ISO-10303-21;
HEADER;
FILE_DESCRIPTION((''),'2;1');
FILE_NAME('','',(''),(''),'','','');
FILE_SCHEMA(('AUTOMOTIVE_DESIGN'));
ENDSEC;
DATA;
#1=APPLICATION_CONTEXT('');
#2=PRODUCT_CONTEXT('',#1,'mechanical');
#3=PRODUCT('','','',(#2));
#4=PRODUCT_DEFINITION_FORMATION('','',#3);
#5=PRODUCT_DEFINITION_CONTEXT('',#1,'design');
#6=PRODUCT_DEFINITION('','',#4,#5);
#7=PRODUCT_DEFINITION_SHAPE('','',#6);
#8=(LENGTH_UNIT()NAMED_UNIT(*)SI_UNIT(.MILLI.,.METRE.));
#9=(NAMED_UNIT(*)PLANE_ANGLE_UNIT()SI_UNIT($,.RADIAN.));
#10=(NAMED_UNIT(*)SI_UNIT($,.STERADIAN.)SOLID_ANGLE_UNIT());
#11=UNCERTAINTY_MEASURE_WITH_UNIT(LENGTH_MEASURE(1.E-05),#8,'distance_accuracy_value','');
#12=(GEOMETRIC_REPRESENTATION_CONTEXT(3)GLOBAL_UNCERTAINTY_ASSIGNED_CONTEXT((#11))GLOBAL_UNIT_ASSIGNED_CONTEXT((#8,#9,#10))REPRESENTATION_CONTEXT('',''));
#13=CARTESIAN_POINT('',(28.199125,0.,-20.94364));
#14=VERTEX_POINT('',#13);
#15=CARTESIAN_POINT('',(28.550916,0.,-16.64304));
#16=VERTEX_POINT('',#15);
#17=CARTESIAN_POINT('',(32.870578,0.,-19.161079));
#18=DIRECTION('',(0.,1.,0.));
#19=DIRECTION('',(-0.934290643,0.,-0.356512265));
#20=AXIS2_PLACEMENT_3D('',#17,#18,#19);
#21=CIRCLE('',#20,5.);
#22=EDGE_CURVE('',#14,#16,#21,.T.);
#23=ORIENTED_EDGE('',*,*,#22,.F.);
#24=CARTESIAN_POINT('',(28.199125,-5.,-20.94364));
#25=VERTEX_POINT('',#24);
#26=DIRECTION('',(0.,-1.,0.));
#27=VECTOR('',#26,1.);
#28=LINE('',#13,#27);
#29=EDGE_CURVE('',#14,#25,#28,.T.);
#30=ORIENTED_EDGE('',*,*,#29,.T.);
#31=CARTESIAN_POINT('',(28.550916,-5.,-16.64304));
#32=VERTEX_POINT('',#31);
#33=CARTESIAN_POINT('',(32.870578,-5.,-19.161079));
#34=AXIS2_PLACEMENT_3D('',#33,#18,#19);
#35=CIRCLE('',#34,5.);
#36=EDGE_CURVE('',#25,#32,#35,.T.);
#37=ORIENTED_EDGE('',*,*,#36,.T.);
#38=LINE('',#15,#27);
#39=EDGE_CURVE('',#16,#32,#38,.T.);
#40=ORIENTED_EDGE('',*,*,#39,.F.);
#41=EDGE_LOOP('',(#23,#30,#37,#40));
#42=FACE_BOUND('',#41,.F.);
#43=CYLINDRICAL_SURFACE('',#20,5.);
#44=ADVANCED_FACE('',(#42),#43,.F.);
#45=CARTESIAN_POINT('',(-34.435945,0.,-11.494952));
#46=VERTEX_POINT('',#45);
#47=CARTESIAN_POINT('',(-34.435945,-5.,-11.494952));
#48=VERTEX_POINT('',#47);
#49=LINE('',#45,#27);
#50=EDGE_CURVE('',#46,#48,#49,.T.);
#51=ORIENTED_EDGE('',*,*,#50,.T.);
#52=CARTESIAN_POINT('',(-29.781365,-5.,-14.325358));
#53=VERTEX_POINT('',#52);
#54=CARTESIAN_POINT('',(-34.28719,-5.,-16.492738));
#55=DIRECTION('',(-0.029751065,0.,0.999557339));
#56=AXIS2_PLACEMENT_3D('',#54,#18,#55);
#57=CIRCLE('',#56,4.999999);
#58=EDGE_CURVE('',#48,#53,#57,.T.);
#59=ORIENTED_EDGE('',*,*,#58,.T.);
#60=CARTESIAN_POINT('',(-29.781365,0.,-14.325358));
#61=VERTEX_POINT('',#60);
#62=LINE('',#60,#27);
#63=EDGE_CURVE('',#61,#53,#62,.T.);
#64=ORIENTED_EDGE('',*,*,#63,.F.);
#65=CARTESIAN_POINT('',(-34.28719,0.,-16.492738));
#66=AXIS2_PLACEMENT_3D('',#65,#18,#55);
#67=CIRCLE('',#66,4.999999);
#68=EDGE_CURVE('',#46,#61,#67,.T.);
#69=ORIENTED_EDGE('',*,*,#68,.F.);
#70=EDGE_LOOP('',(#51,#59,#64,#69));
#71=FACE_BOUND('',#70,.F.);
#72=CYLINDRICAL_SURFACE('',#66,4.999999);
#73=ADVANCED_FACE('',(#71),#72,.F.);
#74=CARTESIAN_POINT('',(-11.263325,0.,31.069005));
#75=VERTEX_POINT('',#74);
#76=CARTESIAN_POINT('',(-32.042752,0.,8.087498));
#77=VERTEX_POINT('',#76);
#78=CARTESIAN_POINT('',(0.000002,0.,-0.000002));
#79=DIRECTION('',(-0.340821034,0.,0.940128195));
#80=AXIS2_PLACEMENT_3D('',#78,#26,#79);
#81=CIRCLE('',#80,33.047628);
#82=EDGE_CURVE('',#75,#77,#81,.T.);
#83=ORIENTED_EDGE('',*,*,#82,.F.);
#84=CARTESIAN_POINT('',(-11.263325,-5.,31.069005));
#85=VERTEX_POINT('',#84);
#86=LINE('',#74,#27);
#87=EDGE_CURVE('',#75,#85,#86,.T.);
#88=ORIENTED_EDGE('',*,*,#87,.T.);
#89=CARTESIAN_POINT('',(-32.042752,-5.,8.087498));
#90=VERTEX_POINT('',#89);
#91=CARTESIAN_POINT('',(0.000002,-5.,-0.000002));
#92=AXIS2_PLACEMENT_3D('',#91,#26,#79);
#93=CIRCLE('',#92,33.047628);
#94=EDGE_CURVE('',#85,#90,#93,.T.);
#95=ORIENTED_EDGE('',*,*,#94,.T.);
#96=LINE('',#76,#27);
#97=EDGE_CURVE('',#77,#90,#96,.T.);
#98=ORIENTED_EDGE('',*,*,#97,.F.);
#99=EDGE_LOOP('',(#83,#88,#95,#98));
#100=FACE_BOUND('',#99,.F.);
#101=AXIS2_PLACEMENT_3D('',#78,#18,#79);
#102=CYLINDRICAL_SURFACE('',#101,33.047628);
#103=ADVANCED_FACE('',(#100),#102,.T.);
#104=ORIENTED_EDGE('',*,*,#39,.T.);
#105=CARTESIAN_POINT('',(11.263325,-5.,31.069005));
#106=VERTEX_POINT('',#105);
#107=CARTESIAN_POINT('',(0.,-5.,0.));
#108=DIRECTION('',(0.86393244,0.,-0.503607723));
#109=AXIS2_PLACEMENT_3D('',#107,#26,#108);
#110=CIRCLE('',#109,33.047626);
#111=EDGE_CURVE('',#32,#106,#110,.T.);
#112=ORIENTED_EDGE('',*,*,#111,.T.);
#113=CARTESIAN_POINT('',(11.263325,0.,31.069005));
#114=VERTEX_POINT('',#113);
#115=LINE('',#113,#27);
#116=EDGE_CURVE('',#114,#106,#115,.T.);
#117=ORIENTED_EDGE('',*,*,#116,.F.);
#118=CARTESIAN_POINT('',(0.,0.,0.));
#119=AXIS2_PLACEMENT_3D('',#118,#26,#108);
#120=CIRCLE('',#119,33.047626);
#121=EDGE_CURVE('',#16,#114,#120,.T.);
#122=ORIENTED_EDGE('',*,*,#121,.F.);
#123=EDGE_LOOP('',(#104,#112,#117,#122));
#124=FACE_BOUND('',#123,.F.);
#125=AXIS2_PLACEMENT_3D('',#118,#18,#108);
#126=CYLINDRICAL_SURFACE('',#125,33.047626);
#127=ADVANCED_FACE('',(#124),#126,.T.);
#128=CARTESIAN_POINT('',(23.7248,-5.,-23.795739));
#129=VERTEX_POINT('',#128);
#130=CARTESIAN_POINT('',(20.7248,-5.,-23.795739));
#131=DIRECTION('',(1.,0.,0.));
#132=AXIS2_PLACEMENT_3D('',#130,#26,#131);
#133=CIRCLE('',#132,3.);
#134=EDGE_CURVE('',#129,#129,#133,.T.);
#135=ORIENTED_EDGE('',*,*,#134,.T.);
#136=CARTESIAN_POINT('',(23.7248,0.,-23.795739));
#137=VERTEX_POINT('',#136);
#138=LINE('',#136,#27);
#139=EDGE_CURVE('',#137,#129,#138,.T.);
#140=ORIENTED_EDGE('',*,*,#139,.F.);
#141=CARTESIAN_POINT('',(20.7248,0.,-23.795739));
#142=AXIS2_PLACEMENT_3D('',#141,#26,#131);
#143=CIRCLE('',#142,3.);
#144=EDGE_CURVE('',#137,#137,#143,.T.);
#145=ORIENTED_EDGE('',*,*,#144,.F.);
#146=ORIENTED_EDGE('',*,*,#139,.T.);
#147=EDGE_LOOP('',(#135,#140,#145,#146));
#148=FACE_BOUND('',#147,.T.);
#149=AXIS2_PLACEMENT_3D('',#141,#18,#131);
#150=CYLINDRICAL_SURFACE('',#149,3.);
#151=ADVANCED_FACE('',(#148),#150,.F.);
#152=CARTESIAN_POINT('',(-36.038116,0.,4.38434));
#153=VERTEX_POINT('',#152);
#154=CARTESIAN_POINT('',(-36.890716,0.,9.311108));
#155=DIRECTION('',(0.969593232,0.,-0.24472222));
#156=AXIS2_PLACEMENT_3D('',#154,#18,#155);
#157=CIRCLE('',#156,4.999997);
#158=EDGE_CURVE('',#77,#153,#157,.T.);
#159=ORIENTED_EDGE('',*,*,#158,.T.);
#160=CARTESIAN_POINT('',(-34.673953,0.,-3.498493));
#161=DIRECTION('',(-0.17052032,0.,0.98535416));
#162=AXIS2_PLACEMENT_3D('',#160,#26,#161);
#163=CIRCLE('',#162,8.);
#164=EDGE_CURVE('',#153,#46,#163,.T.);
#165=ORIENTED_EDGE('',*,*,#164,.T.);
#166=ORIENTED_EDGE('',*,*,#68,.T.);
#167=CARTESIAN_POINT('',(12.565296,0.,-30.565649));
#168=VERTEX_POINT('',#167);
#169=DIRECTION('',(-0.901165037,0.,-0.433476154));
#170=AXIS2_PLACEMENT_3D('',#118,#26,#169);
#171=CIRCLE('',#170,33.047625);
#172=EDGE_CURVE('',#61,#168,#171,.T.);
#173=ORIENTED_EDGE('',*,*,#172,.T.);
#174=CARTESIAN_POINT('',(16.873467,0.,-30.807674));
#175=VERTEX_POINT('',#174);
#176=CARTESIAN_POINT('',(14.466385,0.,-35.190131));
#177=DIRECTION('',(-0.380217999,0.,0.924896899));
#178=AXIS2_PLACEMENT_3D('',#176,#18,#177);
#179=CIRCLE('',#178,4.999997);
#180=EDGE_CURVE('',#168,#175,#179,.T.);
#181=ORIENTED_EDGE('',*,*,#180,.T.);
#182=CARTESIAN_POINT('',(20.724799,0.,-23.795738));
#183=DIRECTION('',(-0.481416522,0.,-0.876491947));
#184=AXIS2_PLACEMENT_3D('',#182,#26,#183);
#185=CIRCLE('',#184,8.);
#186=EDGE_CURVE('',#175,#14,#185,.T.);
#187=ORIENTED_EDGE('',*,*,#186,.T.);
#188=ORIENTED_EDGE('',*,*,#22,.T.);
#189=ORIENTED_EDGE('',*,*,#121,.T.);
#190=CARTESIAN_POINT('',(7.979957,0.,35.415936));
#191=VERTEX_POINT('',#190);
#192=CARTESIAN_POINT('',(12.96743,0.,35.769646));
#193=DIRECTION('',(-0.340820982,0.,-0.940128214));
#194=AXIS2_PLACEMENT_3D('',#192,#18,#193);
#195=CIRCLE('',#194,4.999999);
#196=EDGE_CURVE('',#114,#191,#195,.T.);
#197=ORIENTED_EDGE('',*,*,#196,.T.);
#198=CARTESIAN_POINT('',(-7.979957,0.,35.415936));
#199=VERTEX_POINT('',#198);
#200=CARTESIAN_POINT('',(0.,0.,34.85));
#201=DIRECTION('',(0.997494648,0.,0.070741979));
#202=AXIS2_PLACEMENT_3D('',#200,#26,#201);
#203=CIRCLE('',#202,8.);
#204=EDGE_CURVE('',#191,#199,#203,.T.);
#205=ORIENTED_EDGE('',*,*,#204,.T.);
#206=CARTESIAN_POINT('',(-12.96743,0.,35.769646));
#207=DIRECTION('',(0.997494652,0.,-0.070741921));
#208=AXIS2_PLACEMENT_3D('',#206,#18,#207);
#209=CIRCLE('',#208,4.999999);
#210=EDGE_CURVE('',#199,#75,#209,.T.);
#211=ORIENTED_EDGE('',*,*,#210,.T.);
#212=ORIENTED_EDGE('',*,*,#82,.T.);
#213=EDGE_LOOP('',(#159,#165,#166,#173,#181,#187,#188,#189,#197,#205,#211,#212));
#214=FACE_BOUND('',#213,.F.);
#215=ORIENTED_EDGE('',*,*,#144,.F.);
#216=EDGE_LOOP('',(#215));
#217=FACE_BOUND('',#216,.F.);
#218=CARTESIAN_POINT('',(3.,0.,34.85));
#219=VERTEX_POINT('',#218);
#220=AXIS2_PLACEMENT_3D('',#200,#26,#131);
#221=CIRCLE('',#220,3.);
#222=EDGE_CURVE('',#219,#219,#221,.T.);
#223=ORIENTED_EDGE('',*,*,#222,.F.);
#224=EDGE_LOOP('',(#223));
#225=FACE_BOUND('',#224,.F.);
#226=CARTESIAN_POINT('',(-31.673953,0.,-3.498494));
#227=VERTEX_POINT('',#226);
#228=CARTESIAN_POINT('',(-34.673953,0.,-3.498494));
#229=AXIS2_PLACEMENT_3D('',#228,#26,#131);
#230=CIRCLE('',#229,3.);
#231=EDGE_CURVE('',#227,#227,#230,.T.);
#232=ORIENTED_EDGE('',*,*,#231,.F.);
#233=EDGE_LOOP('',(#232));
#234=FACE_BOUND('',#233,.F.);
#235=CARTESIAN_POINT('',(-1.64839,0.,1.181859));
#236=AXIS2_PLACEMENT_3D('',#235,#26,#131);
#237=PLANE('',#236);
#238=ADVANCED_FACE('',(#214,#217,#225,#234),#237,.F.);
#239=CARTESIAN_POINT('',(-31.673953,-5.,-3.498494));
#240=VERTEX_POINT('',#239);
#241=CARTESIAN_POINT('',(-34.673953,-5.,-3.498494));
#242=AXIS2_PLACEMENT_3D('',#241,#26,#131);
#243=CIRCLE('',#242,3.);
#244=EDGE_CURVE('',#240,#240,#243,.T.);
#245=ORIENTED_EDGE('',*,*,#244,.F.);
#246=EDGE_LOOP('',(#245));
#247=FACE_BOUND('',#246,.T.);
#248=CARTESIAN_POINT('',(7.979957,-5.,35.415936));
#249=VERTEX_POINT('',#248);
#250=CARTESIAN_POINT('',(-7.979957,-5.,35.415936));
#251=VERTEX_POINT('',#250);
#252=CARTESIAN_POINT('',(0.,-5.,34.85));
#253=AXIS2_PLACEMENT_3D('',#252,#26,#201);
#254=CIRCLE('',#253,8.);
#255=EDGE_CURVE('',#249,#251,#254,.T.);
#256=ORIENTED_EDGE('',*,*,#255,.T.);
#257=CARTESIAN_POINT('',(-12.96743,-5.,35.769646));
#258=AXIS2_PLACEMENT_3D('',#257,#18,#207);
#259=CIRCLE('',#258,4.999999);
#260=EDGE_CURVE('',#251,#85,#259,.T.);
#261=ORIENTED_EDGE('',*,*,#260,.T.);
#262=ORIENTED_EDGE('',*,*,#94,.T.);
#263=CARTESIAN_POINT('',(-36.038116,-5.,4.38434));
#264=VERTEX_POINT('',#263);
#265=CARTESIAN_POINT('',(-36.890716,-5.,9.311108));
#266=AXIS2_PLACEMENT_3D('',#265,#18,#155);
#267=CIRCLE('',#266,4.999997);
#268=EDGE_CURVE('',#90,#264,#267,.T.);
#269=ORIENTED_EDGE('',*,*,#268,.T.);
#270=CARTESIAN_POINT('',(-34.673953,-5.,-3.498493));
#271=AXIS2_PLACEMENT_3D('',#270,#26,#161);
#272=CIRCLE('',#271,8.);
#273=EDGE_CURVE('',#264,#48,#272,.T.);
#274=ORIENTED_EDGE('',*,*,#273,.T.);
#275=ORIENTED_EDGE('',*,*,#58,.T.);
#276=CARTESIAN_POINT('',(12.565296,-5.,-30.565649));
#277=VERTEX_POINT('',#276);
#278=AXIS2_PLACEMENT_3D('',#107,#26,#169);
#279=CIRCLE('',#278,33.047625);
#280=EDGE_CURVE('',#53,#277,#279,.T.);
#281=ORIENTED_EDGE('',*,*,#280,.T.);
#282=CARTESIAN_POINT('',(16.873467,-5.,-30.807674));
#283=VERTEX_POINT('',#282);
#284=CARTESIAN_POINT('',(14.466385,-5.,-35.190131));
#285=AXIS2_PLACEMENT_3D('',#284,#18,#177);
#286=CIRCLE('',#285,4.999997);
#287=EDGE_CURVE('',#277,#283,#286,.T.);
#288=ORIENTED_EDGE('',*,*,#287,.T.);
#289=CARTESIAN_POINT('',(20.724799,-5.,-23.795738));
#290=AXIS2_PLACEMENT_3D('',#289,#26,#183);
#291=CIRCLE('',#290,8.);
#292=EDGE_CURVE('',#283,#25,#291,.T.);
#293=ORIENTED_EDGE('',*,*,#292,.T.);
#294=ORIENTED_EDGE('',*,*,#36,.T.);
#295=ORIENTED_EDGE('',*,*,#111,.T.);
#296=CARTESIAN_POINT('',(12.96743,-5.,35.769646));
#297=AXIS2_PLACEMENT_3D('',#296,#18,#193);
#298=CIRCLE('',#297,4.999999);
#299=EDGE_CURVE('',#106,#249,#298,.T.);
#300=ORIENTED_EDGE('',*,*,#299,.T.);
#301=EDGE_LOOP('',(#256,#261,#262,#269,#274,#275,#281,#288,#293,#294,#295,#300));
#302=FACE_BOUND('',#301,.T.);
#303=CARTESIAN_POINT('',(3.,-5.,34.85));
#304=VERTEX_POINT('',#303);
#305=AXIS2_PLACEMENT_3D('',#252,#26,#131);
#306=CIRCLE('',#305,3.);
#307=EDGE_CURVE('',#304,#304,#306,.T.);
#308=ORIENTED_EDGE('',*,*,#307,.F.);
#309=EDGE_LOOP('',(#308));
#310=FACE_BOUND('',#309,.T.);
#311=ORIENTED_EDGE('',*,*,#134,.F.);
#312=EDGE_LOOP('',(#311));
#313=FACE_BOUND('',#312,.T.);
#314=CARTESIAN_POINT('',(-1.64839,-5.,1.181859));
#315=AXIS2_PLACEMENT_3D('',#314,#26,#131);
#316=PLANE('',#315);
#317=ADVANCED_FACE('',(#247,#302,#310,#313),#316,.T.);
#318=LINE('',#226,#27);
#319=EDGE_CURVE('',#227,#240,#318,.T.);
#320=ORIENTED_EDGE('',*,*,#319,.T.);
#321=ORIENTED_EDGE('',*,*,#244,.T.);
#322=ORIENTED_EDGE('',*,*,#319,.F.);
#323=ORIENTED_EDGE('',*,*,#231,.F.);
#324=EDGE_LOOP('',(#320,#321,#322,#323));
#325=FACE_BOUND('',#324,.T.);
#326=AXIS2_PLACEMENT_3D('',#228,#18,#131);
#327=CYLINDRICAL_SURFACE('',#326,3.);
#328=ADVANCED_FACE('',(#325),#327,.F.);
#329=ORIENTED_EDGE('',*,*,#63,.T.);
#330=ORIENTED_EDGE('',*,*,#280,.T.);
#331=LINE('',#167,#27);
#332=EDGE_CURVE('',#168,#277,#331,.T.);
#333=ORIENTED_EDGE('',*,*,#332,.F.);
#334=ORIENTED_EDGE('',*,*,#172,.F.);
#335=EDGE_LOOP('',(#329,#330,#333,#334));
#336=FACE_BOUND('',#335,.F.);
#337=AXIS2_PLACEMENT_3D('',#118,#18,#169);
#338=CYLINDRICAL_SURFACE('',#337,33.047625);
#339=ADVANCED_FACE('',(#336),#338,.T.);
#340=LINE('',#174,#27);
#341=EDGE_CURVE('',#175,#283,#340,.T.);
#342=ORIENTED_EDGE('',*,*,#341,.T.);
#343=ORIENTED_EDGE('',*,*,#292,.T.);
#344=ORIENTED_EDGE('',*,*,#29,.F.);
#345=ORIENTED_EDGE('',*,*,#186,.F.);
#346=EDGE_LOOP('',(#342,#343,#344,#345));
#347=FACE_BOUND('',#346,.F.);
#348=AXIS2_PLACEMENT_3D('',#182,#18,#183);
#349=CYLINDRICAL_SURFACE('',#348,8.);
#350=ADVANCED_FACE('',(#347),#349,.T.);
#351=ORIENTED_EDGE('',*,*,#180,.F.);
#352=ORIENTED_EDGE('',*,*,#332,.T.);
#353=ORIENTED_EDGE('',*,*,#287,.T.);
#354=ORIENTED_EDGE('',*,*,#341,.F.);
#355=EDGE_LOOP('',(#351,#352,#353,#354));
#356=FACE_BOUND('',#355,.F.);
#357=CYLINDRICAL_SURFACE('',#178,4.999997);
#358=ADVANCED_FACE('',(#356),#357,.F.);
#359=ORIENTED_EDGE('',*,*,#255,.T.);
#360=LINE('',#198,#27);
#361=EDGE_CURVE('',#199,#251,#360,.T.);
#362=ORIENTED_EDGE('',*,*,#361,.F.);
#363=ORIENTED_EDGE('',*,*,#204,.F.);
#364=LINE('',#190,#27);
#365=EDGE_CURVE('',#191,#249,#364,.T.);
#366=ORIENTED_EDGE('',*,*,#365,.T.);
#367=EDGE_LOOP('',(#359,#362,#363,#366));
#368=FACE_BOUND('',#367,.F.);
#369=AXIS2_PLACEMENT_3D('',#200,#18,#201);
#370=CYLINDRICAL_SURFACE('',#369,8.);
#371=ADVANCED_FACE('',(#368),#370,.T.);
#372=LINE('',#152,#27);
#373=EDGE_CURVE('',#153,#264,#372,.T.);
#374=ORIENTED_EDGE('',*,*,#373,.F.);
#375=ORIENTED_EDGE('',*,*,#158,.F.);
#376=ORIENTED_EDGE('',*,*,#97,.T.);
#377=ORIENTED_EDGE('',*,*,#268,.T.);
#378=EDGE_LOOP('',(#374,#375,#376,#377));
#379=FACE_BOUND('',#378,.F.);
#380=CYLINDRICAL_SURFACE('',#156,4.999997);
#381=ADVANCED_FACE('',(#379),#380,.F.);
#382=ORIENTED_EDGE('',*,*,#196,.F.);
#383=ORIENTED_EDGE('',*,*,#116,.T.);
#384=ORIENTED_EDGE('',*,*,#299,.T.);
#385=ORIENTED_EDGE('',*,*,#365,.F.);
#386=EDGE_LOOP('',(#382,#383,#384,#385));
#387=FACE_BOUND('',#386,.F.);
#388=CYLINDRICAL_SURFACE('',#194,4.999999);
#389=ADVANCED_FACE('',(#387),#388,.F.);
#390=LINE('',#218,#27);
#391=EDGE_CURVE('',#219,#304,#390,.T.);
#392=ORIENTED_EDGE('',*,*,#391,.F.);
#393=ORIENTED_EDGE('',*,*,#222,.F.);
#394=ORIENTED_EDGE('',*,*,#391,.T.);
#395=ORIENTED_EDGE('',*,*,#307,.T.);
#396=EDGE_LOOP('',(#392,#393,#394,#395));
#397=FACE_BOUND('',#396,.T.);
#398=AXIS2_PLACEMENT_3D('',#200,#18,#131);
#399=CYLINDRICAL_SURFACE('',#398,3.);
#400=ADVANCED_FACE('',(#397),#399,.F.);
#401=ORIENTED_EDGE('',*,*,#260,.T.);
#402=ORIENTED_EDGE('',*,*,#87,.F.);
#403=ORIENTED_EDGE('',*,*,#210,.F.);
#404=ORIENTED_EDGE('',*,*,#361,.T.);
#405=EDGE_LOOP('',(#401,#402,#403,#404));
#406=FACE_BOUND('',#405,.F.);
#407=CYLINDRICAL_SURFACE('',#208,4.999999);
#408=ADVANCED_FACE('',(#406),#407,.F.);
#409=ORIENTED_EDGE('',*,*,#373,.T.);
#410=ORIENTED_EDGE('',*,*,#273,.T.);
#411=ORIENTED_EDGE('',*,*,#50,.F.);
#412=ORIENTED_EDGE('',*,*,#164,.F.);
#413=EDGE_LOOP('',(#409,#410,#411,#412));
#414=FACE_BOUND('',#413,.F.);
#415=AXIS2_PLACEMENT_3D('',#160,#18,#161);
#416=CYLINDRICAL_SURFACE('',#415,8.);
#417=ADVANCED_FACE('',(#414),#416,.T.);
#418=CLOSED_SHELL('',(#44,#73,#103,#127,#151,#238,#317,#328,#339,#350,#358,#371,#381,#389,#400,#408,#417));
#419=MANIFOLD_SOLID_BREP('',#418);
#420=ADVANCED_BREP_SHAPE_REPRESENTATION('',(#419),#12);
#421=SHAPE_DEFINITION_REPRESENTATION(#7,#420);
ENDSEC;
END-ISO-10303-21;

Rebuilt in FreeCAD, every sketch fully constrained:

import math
import FreeCAD as App
import Part
import Sketcher
Q = App.Units.Quantity

doc = App.newDocument("Part")
body = doc.addObject("PartDesign::Body", "Body")

sketch1 = body.newObject("Sketcher::SketchObject", "Sketch")
sketch1.AttachmentSupport = (doc.getObject("XZ_Plane"), [""])
sketch1.MapMode = "FlatFace"
sketch1.addGeometry(Part.ArcOfCircle(Part.Circle(App.Vector(14.5, -35.2, 0), App.Vector(0, 0, 1), 5), math.radians(61), math.radians(112)), False)
sketch1.addGeometry(Part.ArcOfCircle(Part.Circle(App.Vector(20.7, -23.8, 0), App.Vector(0, 0, 1), 8), math.radians(-119), math.radians(21)), False)
sketch1.addGeometry(Part.ArcOfCircle(Part.Circle(App.Vector(32.9, -19.2, 0), App.Vector(0, 0, 1), 5), math.radians(150), math.radians(201)), False)
sketch1.addGeometry(Part.ArcOfCircle(Part.Circle(App.Vector(0, 0, 0), App.Vector(0, 0, 1), 33), math.radians(-30), math.radians(70)), False)
sketch1.addGeometry(Part.ArcOfCircle(Part.Circle(App.Vector(13, 35.8, 0), App.Vector(0, 0, 1), 5), math.radians(-176), math.radians(-110)), False)
sketch1.addGeometry(Part.ArcOfCircle(Part.Circle(App.Vector(0, 34.9, 0), App.Vector(0, 0, 1), 8), math.radians(4), math.radians(176)), False)
sketch1.addGeometry(Part.ArcOfCircle(Part.Circle(App.Vector(-13, 35.8, 0), App.Vector(0, 0, 1), 5), math.radians(-70), math.radians(-4)), False)
sketch1.addGeometry(Part.ArcOfCircle(Part.Circle(App.Vector(0, 0, 0), App.Vector(0, 0, 1), 33), math.radians(110), math.radians(166)), False)
sketch1.addGeometry(Part.ArcOfCircle(Part.Circle(App.Vector(-36.9, 9.3, 0), App.Vector(0, 0, 1), 5), math.radians(-80), math.radians(-14)), False)
sketch1.addGeometry(Part.ArcOfCircle(Part.Circle(App.Vector(-34.7, -3.5, 0), App.Vector(0, 0, 1), 8), math.radians(100), math.radians(272)), False)
sketch1.addGeometry(Part.ArcOfCircle(Part.Circle(App.Vector(-34.3, -16.5, 0), App.Vector(0, 0, 1), 5), math.radians(26), math.radians(92)), False)
sketch1.addGeometry(Part.ArcOfCircle(Part.Circle(App.Vector(0, 0, 0), App.Vector(0, 0, 1), 33), math.radians(-154), math.radians(-68)), False)
sketch1.addGeometry(Part.Circle(App.Vector(-34.7, -3.5, 0), App.Vector(0, 0, 1), 3), False)
sketch1.addGeometry(Part.Circle(App.Vector(20.7, -23.8, 0), App.Vector(0, 0, 1), 3), False)
sketch1.addGeometry(Part.Circle(App.Vector(0, 34.9, 0), App.Vector(0, 0, 1), 3), False)
sketch1.addConstraint(Sketcher.Constraint("Tangent", 0, 1, 1, 1))
sketch1.addConstraint(Sketcher.Constraint("Tangent", 1, 2, 2, 2))
sketch1.addConstraint(Sketcher.Constraint("Tangent", 2, 1, 3, 1))
sketch1.addConstraint(Sketcher.Constraint("Tangent", 3, 2, 4, 2))
sketch1.addConstraint(Sketcher.Constraint("Tangent", 4, 1, 5, 1))
sketch1.addConstraint(Sketcher.Constraint("Tangent", 5, 2, 6, 2))
sketch1.addConstraint(Sketcher.Constraint("Tangent", 6, 1, 7, 1))
sketch1.addConstraint(Sketcher.Constraint("Tangent", 7, 2, 8, 2))
sketch1.addConstraint(Sketcher.Constraint("Tangent", 8, 1, 9, 1))
sketch1.addConstraint(Sketcher.Constraint("Tangent", 9, 2, 10, 2))
sketch1.addConstraint(Sketcher.Constraint("Tangent", 10, 1, 11, 1))
sketch1.addConstraint(Sketcher.Constraint("Tangent", 11, 2, 0, 2))
sketch1.addConstraint(Sketcher.Constraint("Coincident", 3, 3, -1, 1))
sketch1.addConstraint(Sketcher.Constraint("Coincident", 7, 3, -1, 1))
sketch1.addConstraint(Sketcher.Constraint("Coincident", 11, 3, -1, 1))
sketch1.addConstraint(Sketcher.Constraint("Coincident", 12, 3, 9, 3))
sketch1.addConstraint(Sketcher.Constraint("Coincident", 13, 3, 1, 3))
sketch1.addConstraint(Sketcher.Constraint("Coincident", 14, 3, 5, 3))
sketch1.addConstraint(Sketcher.Constraint("Equal", 2, 4))
sketch1.addConstraint(Sketcher.Constraint("Equal", 1, 5))
sketch1.addConstraint(Sketcher.Constraint("Equal", 4, 6))
sketch1.addConstraint(Sketcher.Constraint("Equal", 0, 8))
sketch1.addConstraint(Sketcher.Constraint("Equal", 5, 9))
sketch1.addConstraint(Sketcher.Constraint("Equal", 8, 10))
sketch1.addConstraint(Sketcher.Constraint("Equal", 3, 11))
sketch1.addConstraint(Sketcher.Constraint("Equal", 12, 13))
sketch1.addConstraint(Sketcher.Constraint("Equal", 13, 14))
sketch1.addConstraint(Sketcher.Constraint("Symmetric", 4, 3, 6, 3, -2))
sketch1.addConstraint(Sketcher.Constraint("Diameter", 12, Q("6 mm")))
sketch1.addConstraint(Sketcher.Constraint("Radius", 1, Q("8 mm")))
sketch1.addConstraint(Sketcher.Constraint("Radius", 2, Q("5 mm")))
sketch1.addConstraint(Sketcher.Constraint("Radius", 10, Q("4.999999 mm")))
sketch1.addConstraint(Sketcher.Constraint("DistanceY", -1, 1, 5, 3, Q("34.85 mm")))
sketch1.addConstraint(Sketcher.Constraint("Radius", 7, Q("33.047628 mm")))
sketch1.addConstraint(Sketcher.Constraint("DistanceX", -1, 1, 1, 3, Q("20.724799 mm")))
sketch1.addConstraint(Sketcher.Constraint("DistanceY", 9, 3, 8, 3, Q("12.809602 mm")))
sketch1.addConstraint(Sketcher.Constraint("DistanceY", 13, 3, 1, 2, Q("2.852099 mm")))
sketch1.addConstraint(Sketcher.Constraint("DistanceY", -1, 1, 8, 3, Q("9.311108 mm")))
pad1 = body.newObject("PartDesign::Pad", "Pad")
pad1.Profile = sketch1
pad1.Length = 5

doc.recompute()
